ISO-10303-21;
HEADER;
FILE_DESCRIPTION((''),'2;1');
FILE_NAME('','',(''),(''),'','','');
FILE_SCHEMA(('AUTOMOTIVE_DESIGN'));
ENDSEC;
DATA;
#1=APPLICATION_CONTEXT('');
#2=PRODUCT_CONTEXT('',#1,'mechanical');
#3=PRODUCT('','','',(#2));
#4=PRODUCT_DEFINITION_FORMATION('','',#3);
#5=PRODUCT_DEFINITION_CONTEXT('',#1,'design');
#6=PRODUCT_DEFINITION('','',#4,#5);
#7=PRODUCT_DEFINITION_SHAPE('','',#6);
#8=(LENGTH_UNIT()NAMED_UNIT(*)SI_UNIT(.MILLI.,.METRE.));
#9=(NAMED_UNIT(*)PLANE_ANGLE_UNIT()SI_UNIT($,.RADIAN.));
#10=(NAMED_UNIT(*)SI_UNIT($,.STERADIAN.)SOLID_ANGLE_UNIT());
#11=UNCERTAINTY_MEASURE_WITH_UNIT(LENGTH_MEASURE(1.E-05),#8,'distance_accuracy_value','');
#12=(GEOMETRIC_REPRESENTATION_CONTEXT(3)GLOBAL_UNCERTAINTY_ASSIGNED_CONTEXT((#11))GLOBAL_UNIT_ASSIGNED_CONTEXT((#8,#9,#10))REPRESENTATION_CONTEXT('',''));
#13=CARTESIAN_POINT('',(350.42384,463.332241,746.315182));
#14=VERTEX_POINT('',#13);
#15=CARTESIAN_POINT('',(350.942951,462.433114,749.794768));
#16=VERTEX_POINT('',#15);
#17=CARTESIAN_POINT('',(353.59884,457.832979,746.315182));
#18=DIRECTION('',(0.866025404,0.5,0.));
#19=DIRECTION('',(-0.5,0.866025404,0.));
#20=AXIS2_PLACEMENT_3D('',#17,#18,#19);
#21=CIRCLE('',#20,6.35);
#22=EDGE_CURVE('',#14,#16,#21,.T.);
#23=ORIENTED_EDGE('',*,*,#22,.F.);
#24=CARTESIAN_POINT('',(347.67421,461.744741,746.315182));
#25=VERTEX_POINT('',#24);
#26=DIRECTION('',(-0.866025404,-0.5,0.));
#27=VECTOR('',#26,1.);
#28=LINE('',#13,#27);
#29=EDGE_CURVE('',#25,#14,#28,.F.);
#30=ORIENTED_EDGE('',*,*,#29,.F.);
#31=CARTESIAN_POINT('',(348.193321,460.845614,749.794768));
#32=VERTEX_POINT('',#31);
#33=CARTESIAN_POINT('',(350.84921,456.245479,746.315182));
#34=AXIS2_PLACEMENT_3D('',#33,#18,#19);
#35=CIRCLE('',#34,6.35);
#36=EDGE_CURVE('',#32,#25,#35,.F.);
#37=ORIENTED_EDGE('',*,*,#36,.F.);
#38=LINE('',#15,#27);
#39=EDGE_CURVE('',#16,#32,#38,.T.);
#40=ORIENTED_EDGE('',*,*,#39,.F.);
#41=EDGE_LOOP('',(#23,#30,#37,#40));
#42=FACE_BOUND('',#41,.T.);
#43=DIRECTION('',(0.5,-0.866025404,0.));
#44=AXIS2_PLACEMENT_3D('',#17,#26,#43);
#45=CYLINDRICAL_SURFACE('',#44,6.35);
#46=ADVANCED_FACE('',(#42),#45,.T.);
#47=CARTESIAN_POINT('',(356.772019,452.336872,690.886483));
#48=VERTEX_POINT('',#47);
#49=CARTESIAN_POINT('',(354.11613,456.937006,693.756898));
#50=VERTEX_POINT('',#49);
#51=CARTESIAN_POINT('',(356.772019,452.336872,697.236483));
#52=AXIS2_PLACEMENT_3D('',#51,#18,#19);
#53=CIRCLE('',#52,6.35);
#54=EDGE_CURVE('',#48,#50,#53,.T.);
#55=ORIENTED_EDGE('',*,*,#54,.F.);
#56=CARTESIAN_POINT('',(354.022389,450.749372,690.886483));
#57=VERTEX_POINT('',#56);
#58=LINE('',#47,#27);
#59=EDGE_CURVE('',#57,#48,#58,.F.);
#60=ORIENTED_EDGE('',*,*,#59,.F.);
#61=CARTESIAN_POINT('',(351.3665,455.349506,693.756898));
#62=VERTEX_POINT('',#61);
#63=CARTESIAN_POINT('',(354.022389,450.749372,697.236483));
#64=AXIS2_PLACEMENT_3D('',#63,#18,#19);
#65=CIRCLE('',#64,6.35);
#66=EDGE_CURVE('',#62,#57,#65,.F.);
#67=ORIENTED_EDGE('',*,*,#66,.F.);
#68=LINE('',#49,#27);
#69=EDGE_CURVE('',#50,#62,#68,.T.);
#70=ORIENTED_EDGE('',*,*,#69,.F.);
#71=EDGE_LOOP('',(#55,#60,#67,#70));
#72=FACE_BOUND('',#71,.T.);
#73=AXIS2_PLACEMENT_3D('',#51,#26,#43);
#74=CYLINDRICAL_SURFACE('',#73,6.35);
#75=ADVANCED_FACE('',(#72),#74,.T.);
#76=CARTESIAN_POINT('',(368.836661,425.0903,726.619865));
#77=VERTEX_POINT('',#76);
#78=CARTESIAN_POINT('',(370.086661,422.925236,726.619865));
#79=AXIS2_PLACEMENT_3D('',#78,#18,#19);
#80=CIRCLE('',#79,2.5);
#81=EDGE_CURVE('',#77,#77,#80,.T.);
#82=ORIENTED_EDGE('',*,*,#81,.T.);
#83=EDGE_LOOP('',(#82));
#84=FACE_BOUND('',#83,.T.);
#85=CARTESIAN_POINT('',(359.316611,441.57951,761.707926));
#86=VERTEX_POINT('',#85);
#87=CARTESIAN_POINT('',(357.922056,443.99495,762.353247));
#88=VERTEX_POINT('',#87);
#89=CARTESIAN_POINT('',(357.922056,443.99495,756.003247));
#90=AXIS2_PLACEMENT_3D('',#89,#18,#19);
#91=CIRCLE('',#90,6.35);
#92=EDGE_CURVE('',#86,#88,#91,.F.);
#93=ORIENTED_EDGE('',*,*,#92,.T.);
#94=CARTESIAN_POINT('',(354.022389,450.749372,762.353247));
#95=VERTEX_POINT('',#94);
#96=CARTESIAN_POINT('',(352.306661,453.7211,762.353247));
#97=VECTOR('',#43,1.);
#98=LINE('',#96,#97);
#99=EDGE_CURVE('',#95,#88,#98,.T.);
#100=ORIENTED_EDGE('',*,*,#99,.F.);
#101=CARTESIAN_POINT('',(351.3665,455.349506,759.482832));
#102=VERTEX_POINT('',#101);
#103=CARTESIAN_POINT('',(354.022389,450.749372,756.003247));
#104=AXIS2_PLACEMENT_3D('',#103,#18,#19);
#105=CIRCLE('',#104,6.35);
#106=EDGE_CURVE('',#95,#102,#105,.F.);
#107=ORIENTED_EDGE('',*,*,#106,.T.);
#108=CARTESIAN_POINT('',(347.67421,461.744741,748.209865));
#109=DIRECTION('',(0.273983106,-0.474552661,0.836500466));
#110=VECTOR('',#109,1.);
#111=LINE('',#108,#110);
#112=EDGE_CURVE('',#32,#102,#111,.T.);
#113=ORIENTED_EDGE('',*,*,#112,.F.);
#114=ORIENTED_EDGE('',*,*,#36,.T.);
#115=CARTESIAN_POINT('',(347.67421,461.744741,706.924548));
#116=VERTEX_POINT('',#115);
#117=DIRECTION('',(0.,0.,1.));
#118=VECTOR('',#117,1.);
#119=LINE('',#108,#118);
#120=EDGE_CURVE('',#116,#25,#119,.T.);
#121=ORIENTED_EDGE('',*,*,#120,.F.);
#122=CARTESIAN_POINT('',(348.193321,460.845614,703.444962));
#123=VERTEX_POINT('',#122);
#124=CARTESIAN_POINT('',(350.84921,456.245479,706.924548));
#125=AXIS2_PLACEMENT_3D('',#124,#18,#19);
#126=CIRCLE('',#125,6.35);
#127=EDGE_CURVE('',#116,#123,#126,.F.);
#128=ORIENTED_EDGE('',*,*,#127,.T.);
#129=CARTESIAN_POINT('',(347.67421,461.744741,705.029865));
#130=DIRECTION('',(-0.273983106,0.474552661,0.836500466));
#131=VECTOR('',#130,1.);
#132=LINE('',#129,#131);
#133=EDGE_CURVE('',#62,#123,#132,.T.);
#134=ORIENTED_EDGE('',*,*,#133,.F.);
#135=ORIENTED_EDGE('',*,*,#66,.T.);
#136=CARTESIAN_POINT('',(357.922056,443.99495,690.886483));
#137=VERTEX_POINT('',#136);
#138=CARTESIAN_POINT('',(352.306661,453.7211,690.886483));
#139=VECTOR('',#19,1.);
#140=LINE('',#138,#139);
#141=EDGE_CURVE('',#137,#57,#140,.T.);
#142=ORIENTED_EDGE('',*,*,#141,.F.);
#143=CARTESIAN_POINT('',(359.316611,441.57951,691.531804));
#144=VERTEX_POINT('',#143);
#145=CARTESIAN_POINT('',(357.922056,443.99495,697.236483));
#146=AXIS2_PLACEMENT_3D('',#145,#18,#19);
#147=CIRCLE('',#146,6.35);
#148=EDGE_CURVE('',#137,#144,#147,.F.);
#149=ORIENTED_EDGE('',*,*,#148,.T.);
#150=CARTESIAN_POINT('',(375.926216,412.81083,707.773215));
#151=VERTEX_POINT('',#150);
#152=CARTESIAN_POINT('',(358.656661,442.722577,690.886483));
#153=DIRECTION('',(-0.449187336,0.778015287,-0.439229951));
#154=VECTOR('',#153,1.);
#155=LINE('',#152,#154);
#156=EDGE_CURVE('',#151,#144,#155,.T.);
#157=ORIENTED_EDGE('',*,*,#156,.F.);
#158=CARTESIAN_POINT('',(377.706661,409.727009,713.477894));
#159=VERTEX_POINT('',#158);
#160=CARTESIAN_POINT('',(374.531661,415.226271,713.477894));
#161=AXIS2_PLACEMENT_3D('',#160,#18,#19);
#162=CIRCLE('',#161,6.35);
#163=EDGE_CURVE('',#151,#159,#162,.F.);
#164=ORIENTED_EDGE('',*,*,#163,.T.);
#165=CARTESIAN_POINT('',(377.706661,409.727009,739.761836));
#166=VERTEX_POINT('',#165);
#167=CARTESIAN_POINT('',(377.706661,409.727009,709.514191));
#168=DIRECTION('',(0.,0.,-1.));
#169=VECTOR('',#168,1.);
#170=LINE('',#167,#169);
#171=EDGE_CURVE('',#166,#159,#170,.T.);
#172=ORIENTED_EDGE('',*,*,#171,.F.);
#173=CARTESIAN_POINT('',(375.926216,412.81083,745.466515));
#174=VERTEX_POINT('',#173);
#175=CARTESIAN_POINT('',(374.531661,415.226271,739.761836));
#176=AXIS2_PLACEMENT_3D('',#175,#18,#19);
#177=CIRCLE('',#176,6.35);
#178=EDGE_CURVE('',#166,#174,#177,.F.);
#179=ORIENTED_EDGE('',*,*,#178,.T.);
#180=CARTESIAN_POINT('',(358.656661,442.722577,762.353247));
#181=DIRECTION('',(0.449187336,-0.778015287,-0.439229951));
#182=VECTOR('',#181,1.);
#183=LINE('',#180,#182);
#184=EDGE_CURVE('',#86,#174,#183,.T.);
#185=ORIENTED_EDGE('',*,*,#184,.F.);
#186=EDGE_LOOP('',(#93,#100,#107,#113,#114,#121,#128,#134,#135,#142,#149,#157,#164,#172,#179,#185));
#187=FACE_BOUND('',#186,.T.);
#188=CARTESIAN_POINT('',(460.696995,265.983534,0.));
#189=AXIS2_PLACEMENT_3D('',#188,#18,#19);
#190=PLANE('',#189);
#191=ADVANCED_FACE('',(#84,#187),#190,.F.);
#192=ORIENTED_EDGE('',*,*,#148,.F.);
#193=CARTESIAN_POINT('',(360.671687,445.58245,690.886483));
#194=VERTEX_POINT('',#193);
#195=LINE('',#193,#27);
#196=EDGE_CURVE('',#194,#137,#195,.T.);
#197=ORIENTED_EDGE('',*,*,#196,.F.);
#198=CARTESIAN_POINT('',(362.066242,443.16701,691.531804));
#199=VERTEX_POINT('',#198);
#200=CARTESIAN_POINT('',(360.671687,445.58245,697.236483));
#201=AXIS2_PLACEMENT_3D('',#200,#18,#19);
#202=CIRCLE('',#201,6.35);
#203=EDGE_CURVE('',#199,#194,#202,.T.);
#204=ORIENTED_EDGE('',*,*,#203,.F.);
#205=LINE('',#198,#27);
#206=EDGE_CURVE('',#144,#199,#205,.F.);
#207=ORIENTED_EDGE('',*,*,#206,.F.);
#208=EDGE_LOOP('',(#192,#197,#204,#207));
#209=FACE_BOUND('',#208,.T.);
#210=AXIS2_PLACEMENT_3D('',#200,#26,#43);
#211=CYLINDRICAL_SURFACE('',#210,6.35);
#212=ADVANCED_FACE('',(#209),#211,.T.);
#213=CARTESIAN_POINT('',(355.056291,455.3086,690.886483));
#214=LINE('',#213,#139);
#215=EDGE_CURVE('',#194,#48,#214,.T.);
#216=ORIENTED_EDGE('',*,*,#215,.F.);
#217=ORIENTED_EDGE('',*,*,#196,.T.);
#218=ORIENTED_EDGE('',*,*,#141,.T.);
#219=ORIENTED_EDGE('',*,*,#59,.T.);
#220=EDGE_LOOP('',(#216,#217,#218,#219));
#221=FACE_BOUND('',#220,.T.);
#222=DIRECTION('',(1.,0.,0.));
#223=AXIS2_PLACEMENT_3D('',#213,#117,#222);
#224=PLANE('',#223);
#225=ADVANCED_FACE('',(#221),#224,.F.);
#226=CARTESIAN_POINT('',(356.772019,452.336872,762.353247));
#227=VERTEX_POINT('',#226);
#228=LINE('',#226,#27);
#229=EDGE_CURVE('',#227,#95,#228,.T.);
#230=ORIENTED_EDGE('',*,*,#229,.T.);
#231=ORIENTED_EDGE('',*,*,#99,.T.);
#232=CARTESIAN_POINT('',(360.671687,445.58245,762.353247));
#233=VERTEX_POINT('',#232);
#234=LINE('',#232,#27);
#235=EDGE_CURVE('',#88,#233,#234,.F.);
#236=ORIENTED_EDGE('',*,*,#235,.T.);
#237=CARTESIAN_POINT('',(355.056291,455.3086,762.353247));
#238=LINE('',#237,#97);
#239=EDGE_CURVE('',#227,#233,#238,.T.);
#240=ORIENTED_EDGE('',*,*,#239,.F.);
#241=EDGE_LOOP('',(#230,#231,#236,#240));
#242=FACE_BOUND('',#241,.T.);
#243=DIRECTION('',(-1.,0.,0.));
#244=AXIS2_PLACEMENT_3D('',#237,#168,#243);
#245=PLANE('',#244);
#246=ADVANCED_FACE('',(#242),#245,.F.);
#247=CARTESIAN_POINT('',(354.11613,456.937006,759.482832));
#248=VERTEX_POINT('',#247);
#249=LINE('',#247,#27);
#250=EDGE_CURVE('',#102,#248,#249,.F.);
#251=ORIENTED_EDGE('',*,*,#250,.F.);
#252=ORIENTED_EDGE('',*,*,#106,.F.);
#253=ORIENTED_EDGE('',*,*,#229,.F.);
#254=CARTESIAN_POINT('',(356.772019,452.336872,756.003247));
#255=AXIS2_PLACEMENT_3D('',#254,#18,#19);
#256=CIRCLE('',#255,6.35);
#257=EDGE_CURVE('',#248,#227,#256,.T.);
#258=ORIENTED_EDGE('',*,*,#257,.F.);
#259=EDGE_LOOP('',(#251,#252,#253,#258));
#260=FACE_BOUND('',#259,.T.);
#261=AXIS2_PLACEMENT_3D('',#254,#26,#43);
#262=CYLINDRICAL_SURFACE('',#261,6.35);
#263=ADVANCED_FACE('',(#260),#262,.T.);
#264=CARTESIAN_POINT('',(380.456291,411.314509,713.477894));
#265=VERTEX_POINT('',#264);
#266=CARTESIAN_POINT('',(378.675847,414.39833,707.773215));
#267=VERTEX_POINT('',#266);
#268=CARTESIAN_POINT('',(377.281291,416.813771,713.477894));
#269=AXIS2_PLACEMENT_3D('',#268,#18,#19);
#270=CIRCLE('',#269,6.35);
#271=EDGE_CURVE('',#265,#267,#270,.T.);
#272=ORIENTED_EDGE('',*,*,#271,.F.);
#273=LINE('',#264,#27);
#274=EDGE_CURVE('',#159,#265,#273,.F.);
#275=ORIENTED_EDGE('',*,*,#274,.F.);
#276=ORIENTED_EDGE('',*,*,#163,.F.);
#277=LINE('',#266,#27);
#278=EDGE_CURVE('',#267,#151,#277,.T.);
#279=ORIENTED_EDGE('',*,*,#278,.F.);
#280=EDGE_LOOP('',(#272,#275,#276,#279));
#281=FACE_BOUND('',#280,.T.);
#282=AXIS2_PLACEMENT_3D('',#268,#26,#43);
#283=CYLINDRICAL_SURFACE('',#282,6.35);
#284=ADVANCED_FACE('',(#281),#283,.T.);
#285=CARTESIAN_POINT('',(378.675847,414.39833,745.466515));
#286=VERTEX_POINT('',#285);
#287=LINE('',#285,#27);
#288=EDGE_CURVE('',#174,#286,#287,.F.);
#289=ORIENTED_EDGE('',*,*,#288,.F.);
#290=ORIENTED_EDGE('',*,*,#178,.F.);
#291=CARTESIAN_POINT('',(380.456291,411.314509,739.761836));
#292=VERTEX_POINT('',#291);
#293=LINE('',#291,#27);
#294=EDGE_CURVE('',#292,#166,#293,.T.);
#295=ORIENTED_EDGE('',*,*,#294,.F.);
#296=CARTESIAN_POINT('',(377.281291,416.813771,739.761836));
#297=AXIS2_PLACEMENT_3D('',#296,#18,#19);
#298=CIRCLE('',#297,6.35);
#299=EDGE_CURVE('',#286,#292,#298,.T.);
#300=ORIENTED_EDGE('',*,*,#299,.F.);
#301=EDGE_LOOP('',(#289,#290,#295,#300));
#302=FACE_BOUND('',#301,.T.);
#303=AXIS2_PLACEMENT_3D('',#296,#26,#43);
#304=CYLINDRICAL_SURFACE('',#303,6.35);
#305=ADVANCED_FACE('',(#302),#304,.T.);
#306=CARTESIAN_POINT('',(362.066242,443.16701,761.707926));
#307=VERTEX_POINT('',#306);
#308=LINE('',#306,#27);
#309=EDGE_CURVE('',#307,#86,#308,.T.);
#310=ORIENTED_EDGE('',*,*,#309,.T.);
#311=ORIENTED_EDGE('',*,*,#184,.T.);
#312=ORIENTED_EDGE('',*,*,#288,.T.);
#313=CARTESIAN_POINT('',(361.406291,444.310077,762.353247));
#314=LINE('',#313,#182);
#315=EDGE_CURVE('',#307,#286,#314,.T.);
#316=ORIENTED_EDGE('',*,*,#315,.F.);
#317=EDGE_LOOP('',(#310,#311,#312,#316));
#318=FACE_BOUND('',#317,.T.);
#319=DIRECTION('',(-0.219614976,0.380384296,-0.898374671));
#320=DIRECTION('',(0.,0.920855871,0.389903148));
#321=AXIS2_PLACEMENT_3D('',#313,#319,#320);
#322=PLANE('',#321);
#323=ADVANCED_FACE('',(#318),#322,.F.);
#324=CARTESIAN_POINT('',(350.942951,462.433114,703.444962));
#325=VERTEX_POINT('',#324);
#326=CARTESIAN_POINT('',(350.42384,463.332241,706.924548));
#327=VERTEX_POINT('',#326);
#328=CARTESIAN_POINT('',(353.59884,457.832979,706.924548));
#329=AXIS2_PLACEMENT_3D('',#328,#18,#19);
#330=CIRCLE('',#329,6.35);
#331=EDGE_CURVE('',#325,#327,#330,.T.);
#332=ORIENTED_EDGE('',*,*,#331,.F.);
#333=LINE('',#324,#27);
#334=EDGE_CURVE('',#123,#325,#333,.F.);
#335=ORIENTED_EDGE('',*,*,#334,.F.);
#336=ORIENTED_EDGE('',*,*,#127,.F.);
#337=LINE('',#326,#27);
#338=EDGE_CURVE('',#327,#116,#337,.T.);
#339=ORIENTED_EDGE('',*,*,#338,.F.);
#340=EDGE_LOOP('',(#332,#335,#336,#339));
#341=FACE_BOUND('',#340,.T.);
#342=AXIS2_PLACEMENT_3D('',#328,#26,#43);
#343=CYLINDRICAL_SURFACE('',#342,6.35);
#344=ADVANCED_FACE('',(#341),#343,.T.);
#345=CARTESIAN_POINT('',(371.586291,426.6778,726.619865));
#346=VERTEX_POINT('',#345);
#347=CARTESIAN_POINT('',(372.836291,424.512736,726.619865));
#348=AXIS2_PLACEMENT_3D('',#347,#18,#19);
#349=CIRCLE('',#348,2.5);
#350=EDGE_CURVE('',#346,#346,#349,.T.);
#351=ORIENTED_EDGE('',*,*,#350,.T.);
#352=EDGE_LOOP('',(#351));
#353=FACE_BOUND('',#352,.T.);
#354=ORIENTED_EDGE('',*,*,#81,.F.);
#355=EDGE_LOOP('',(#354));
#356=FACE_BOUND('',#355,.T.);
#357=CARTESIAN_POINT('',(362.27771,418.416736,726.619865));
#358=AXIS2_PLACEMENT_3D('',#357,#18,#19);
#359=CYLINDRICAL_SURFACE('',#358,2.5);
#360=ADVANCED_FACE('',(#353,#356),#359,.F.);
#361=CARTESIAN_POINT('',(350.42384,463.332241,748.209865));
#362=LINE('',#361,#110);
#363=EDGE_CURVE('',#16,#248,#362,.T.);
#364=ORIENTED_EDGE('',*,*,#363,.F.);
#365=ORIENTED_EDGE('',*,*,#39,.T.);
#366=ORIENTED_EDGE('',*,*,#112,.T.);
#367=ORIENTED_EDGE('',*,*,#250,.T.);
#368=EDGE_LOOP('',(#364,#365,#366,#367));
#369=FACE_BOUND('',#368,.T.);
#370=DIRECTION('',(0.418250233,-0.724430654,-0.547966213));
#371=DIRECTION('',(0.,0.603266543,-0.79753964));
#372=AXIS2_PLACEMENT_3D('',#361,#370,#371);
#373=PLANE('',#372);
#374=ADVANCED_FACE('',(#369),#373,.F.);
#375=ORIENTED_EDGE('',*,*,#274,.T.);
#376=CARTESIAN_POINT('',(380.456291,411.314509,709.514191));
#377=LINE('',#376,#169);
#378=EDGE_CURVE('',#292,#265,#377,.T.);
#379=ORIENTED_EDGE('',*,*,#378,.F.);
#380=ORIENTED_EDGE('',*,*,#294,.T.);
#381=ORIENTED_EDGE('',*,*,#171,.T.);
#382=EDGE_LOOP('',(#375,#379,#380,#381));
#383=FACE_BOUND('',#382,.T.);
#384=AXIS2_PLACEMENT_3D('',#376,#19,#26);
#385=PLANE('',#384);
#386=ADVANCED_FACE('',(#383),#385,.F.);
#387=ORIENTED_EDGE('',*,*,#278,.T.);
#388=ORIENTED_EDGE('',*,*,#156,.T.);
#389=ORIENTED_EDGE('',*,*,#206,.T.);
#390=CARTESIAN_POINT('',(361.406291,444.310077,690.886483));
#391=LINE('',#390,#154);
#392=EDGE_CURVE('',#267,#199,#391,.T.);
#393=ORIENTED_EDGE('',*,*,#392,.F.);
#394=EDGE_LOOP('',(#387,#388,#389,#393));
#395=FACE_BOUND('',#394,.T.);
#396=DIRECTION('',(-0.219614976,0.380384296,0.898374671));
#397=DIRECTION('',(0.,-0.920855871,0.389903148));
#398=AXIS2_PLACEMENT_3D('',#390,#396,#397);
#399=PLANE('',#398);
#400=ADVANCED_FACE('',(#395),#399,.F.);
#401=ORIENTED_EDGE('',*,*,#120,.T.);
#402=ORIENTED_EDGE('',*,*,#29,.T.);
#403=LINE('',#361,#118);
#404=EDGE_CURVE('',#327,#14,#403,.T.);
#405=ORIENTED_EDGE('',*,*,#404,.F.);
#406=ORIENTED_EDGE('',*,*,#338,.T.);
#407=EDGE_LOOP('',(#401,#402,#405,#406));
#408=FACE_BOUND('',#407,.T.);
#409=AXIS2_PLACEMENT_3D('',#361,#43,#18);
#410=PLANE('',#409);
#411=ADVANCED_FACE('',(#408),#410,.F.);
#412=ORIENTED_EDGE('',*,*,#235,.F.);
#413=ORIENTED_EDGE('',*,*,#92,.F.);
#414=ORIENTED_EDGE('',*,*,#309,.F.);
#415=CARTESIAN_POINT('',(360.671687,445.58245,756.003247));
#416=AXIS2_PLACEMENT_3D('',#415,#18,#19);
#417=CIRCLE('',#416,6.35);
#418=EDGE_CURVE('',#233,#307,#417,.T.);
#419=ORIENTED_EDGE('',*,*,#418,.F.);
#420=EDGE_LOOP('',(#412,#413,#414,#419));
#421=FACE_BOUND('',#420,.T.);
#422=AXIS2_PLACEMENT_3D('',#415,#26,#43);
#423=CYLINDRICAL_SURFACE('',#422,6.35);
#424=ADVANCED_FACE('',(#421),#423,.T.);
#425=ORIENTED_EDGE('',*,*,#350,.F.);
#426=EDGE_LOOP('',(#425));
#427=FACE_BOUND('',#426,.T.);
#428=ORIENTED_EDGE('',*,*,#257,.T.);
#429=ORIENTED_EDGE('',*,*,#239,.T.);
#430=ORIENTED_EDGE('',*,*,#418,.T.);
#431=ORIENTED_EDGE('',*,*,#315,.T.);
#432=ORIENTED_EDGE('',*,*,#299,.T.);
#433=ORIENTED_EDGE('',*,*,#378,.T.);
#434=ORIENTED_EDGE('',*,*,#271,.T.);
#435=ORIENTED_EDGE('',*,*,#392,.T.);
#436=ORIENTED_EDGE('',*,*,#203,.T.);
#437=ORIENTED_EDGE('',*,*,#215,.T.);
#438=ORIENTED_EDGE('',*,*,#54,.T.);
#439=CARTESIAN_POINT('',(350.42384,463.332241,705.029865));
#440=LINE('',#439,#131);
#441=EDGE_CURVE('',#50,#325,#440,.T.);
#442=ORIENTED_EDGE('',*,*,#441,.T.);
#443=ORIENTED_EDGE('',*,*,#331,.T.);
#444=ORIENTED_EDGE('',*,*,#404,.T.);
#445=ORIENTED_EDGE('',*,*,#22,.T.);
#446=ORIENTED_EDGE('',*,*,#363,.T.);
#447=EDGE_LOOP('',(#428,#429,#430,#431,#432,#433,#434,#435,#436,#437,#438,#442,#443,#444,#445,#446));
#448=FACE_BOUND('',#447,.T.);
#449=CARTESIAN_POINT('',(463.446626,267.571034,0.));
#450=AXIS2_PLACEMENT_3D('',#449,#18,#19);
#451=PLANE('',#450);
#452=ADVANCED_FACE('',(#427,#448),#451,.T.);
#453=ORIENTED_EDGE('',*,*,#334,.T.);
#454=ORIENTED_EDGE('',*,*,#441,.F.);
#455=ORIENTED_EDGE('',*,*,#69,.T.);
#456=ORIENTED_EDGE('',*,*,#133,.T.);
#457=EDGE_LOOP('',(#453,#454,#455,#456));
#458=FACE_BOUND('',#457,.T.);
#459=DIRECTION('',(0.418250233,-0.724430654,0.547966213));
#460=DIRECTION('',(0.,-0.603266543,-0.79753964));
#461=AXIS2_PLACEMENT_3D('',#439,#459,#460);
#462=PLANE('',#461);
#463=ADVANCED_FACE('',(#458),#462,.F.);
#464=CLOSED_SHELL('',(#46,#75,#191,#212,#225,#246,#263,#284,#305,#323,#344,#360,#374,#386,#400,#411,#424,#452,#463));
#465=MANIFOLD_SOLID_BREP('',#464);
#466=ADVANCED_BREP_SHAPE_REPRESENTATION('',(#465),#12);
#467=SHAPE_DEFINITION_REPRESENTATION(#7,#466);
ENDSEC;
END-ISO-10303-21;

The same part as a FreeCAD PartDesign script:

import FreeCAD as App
import Part
import Sketcher
Q = App.Units.Quantity


def edges_at(feature, points):
    """Names of the edges that pass closest to the given points."""
    edges = feature.Shape.Edges
    near = lambda p: min(range(len(edges)), key=lambda i: edges[i].distToShape(Part.Vertex(*p))[0])
    return sorted({f"Edge{near(p) + 1}" for p in points})


def add_polygon(sketch, points):
    """Adds a closed chain of lines whose ends are joined by coincident constraints."""
    first, n = sketch.GeometryCount, len(points)
    for a, b in zip(points, points[1:] + points[:1]):
        sketch.addGeometry(Part.LineSegment(App.Vector(*a, 0), App.Vector(*b, 0)), False)
    for i in range(n):
        sketch.addConstraint(Sketcher.Constraint("Coincident", first + i, 2, first + (i + 1) % n, 1))

doc = App.newDocument("Part")
body = doc.addObject("PartDesign::Body", "Body")

# Sketch on an angled plane
sketch1 = body.newObject("Sketcher::SketchObject", "Sketch")
sketch1.Placement = App.Placement(App.Vector(460.696995, 265.983534, 0), App.Rotation(App.Vector(0, 0, -1), App.Vector(-0.5, 0.866025404, 0), App.Vector(0.866025404, 0.5, 0), "ZXY"))
add_polygon(sketch1, [(-705, 226), (-748, 226), (-762, 217), (-762, 204), (-744, 166), (-710, 166), (-691, 204), (-691, 217)])  # lines 0-7
sketch1.addConstraint([
    Sketcher.Constraint("Horizontal", 0),
    Sketcher.Constraint("Vertical", 2),
    Sketcher.Constraint("Horizontal", 4),
    Sketcher.Constraint("Vertical", 6),
    Sketcher.Constraint("Horizontal", 2, 2, 5, 2),
    Sketcher.Constraint("Horizontal", 1, 2, 6, 2),
    Sketcher.Constraint("Equal", 3, 5),
    Sketcher.Constraint("Equal", 1, 7),
    Sketcher.Constraint("DistanceX", 0, 2, 0, 1, Q("1.7 in")),
    Sketcher.Constraint("DistanceY", 2, 2, 2, 1, Q("0.5 in")),
    Sketcher.Constraint("DistanceY", 3, 2, 1, 2, Q("2 in")),
    Sketcher.Constraint("Distance", 1, Q("16.907799 mm")),
    Sketcher.Constraint("DistanceX", 4, 1, 4, 2, Q("34.211347 mm")),
    Sketcher.Constraint("DistanceY", -1, 1, 0, 2, Q("226.045571 mm")),
    Sketcher.Constraint("DistanceY", -1, 1, 1, 2, Q("216.780668 mm")),
    Sketcher.Constraint("DistanceX", 3, 2, -1, 1, Q("743.725538 mm")),
])
pad1 = body.newObject("PartDesign::Pad", "Pad")
pad1.Profile = sketch1
pad1.Length = Q("0.125 in")
doc.recompute()

fillet = body.newObject("PartDesign::Fillet", "Fillet")
fillet.Base = (pad1, edges_at(pad1, [
    (349.049, 462.538, 748.21),
    (349.049, 462.538, 705.03),
    (353.681, 454.515, 690.886),
    (360.031, 443.516, 690.886),
    (379.081, 410.521, 709.514),
    (379.081, 410.521, 743.726),
    (360.031, 443.516, 762.353),
    (353.681, 454.515, 762.353),
]))
fillet.Radius = Q("0.25 in")

# Sketch on an angled plane
sketch2 = body.newObject("Sketcher::SketchObject", "Sketch001")
sketch2.Placement = App.Placement(App.Vector(463.446626, 267.571034, 0), App.Rotation(App.Vector(0, 0, -1), App.Vector(-0.5, 0.866025404, 0), App.Vector(0.866025404, 0.5, 0), "ZXY"))
sketch2.addGeometry(Part.Circle(App.Vector(-726.6, 181.2, 0), App.Vector(0, 0, 1), 2.5), False)
sketch2.addConstraint([
    Sketcher.Constraint("Diameter", 0, Q("5 mm")),
    Sketcher.Constraint("DistanceY", -1, 1, 0, 3, Q("181.220668 mm")),
    Sketcher.Constraint("DistanceX", 0, 3, -1, 1, Q("726.619865 mm")),
])
pocket1 = body.newObject("PartDesign::Pocket", "Pocket")
pocket1.Profile = sketch2
pocket1.Length = Q("0.48 in")

doc.recompute()
